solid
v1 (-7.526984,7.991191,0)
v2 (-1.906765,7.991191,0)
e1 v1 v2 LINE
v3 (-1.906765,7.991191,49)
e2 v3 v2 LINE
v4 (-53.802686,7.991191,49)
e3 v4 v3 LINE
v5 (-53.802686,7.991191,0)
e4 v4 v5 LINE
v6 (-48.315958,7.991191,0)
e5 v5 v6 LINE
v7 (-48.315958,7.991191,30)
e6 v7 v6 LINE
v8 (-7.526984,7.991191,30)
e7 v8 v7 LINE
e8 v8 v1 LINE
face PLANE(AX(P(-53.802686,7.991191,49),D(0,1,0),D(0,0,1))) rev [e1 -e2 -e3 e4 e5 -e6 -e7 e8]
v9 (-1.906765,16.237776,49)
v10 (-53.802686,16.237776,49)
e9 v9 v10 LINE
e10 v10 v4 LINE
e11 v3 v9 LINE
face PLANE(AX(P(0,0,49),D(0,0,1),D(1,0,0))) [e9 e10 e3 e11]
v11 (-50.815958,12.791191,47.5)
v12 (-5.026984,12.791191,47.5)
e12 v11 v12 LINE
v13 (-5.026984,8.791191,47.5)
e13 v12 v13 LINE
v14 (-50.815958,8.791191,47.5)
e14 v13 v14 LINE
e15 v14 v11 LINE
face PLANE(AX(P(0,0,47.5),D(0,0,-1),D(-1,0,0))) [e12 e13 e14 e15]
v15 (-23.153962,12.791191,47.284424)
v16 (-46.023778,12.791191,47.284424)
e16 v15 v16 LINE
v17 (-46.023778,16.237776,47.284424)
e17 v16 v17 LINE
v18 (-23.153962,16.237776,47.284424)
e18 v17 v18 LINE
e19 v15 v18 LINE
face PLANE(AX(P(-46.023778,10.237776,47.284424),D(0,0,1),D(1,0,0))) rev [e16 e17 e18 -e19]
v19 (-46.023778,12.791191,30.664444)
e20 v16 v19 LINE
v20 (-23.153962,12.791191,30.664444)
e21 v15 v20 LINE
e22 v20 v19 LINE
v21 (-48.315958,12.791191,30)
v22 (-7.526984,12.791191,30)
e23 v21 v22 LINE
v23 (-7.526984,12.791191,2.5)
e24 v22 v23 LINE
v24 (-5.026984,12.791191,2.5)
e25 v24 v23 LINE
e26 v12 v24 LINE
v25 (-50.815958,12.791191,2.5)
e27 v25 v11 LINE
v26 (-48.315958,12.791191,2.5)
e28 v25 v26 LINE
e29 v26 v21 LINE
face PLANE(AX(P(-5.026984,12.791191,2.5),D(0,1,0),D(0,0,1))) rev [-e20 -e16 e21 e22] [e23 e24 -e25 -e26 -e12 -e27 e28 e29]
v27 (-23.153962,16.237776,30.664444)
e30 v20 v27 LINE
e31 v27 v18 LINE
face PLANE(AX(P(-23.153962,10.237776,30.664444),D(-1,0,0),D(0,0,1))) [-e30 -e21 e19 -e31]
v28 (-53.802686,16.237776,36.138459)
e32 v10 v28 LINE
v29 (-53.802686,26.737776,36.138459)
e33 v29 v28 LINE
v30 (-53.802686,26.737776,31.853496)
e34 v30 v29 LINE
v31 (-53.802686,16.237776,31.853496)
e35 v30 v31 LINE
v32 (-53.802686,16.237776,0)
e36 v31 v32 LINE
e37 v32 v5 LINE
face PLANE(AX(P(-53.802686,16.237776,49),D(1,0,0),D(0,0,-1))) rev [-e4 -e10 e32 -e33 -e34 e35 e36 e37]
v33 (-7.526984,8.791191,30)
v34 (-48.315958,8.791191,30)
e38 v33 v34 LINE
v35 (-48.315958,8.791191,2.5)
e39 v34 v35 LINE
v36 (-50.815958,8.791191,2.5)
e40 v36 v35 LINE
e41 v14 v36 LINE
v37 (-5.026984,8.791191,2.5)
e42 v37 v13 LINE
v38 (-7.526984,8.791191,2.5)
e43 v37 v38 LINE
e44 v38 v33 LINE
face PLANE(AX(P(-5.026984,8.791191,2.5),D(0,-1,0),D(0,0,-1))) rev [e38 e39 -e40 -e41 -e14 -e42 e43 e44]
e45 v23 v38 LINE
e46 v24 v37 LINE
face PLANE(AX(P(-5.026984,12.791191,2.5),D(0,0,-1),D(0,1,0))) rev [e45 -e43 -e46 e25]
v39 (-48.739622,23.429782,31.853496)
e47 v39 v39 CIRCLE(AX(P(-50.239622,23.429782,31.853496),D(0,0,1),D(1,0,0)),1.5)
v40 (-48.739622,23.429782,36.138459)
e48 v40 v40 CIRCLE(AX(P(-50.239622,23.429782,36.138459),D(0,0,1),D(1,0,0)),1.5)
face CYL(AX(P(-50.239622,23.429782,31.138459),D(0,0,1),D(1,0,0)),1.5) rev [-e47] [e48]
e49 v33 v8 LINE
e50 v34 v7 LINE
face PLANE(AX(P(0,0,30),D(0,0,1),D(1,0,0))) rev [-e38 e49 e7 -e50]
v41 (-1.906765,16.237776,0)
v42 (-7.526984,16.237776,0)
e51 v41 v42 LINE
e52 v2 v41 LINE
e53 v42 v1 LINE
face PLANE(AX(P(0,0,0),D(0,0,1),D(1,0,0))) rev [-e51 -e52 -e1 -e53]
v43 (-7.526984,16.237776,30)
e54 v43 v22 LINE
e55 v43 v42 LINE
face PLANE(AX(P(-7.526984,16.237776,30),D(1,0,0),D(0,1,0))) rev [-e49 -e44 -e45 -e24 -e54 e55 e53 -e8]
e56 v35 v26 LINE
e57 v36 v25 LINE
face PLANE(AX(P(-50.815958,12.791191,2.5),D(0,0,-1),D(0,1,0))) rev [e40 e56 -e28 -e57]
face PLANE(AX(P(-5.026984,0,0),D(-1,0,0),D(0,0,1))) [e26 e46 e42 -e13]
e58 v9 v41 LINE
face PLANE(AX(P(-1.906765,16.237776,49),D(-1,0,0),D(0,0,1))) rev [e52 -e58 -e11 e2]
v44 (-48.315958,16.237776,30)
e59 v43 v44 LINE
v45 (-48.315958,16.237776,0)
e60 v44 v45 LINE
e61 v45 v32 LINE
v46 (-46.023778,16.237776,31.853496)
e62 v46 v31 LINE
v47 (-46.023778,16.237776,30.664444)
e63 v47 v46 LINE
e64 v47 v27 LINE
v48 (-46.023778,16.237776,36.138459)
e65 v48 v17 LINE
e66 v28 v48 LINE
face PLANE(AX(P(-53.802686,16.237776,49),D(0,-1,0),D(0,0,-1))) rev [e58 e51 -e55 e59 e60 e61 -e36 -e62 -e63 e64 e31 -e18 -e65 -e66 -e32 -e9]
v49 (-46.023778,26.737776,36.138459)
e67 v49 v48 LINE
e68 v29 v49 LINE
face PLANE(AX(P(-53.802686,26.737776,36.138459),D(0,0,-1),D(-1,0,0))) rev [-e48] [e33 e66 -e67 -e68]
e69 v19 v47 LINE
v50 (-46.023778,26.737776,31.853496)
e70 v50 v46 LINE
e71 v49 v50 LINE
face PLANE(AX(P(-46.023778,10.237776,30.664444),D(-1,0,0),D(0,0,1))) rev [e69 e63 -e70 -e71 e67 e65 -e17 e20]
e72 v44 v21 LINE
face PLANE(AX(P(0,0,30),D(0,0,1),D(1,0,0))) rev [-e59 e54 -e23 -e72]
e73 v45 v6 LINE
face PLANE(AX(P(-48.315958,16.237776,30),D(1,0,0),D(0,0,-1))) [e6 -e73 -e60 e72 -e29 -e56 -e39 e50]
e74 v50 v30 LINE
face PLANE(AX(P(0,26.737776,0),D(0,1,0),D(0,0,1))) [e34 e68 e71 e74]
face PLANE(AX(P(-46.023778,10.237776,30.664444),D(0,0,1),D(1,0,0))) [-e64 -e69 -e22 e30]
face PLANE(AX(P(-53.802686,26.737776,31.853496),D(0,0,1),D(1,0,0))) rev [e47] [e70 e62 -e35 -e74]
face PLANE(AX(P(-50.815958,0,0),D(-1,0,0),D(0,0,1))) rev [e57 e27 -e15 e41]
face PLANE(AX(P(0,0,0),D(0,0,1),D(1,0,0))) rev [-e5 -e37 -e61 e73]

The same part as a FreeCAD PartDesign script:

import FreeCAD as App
import Part
import Sketcher
Q = App.Units.Quantity

doc = App.newDocument("Part")
body = doc.addObject("PartDesign::Body", "Body")

# Sketch on XY plane
sketch1 = doc.addObject("Sketcher::SketchObject", "Sketch")
body.addObject(sketch1)
sketch1.AttachmentSupport = (doc.XY_Plane, [""])
sketch1.MapMode = "FlatFace"
sketch1.addGeometry(Part.LineSegment(App.Vector(-54, 16, 0), App.Vector(-54, 8, 0)), False)
sketch1.addGeometry(Part.LineSegment(App.Vector(-54, 8, 0), App.Vector(-2, 8, 0)), False)
sketch1.addGeometry(Part.LineSegment(App.Vector(-2, 8, 0), App.Vector(-2, 16, 0)), False)
sketch1.addGeometry(Part.LineSegment(App.Vector(-2, 16, 0), App.Vector(-54, 16, 0)), False)
sketch1.addConstraint(Sketcher.Constraint("Coincident", 0, 2, 1, 1))
sketch1.addConstraint(Sketcher.Constraint("Coincident", 1, 2, 2, 1))
sketch1.addConstraint(Sketcher.Constraint("Coincident", 2, 2, 3, 1))
sketch1.addConstraint(Sketcher.Constraint("Coincident", 3, 2, 0, 1))
sketch1.addConstraint(Sketcher.Constraint("Vertical", 0))
sketch1.addConstraint(Sketcher.Constraint("Horizontal", 1))
sketch1.addConstraint(Sketcher.Constraint("Vertical", 2))
sketch1.addConstraint(Sketcher.Constraint("Horizontal", 3))
sketch1.addConstraint(Sketcher.Constraint("DistanceX", 1, 1, 1, 2, Q("51.895921 mm")))
sketch1.addConstraint(Sketcher.Constraint("DistanceY", 0, 2, 0, 1, Q("8.246585 mm")))
sketch1.addConstraint(Sketcher.Constraint("DistanceY", -1, 1, 0, 2, Q("7.991191 mm")))
sketch1.addConstraint(Sketcher.Constraint("DistanceX", 0, 2, -1, 1, Q("53.802686 mm")))
pad1 = doc.addObject("PartDesign::Pad", "Pad")
body.addObject(pad1)
pad1.Profile = sketch1
pad1.Length = 49

# Sketch on XY plane
sketch2 = doc.addObject("Sketcher::SketchObject", "Sketch001")
body.addObject(sketch2)
sketch2.AttachmentSupport = (doc.XY_Plane, [""])
sketch2.MapMode = "FlatFace"
sketch2.addGeometry(Part.LineSegment(App.Vector(-8, 16, 0), App.Vector(-8, 8, 0)), False)
sketch2.addGeometry(Part.LineSegment(App.Vector(-8, 8, 0), App.Vector(-48, 8, 0)), False)
sketch2.addGeometry(Part.LineSegment(App.Vector(-48, 8, 0), App.Vector(-48, 16, 0)), False)
sketch2.addGeometry(Part.LineSegment(App.Vector(-48, 16, 0), App.Vector(-8, 16, 0)), False)
sketch2.addConstraint(Sketcher.Constraint("Coincident", 0, 2, 1, 1))
sketch2.addConstraint(Sketcher.Constraint("Coincident", 1, 2, 2, 1))
sketch2.addConstraint(Sketcher.Constraint("Coincident", 2, 2, 3, 1))
sketch2.addConstraint(Sketcher.Constraint("Coincident", 3, 2, 0, 1))
sketch2.addConstraint(Sketcher.Constraint("Vertical", 0))
sketch2.addConstraint(Sketcher.Constraint("Horizontal", 1))
sketch2.addConstraint(Sketcher.Constraint("Vertical", 2))
sketch2.addConstraint(Sketcher.Constraint("Horizontal", 3))
sketch2.addConstraint(Sketcher.Constraint("DistanceX", 1, 2, 1, 1, Q("40.788974 mm")))
sketch2.addConstraint(Sketcher.Constraint("DistanceY", 0, 2, 0, 1, Q("8.246585 mm")))
sketch2.addConstraint(Sketcher.Constraint("DistanceY", -1, 1, 0, 2, Q("7.991191 mm")))
sketch2.addConstraint(Sketcher.Constraint("DistanceX", 1, 2, -1, 1, Q("48.315958 mm")))
pocket1 = doc.addObject("PartDesign::Pocket", "Pocket")
body.addObject(pocket1)
pocket1.Profile = sketch2
pocket1.Length = 30
pocket1.Reversed = True

# Sketch on XZ plane
sketch3 = doc.addObject("Sketcher::SketchObject", "Sketch002")
body.addObject(sketch3)
sketch3.AttachmentSupport = (doc.XZ_Plane, [""])
sketch3.MapMode = "FlatFace"
sketch3.AttachmentOffset = App.Placement(App.Vector(0, 0, -16.237776), App.Rotation())
sketch3.addGeometry(Part.LineSegment(App.Vector(-46, 31, 0), App.Vector(-46, 47, 0)), False)
sketch3.addGeometry(Part.LineSegment(App.Vector(-46, 47, 0), App.Vector(-23, 47, 0)), False)
sketch3.addGeometry(Part.LineSegment(App.Vector(-23, 47, 0), App.Vector(-23, 31, 0)), False)
sketch3.addGeometry(Part.LineSegment(App.Vector(-23, 31, 0), App.Vector(-46, 31, 0)), False)
sketch3.addConstraint(Sketcher.Constraint("Coincident", 0, 2, 1, 1))
sketch3.addConstraint(Sketcher.Constraint("Coincident", 1, 2, 2, 1))
sketch3.addConstraint(Sketcher.Constraint("Coincident", 2, 2, 3, 1))
sketch3.addConstraint(Sketcher.Constraint("Coincident", 3, 2, 0, 1))
sketch3.addConstraint(Sketcher.Constraint("Vertical", 0))
sketch3.addConstraint(Sketcher.Constraint("Horizontal", 1))
sketch3.addConstraint(Sketcher.Constraint("Vertical", 2))
sketch3.addConstraint(Sketcher.Constraint("Horizontal", 3))
sketch3.addConstraint(Sketcher.Constraint("DistanceY", 0, 1, 0, 2, Q("16.61998 mm")))
sketch3.addConstraint(Sketcher.Constraint("DistanceX", 1, 1, 1, 2, Q("22.869816 mm")))
sketch3.addConstraint(Sketcher.Constraint("DistanceX", 0, 2, -1, 1, Q("46.023778 mm")))
sketch3.addConstraint(Sketcher.Constraint("DistanceY", -1, 1, 0, 2, Q("47.284424 mm")))
pocket2 = doc.addObject("PartDesign::Pocket", "Pocket001")
body.addObject(pocket2)
pocket2.Profile = sketch3
pocket2.Length = 6
pocket2.Reversed = True

# Sketch on YZ plane
sketch4 = doc.addObject("Sketcher::SketchObject", "Sketch003")
body.addObject(sketch4)
sketch4.AttachmentSupport = (doc.YZ_Plane, [""])
sketch4.MapMode = "FlatFace"
sketch4.AttachmentOffset = App.Placement(App.Vector(0, 0, -7.526984), App.Rotation())
sketch4.addGeometry(Part.LineSegment(App.Vector(12.8, 2.5, 0), App.Vector(8.8, 2.5, 0)), False)
sketch4.addGeometry(Part.LineSegment(App.Vector(8.8, 2.5, 0), App.Vector(8.8, 30, 0)), False)
sketch4.addGeometry(Part.LineSegment(App.Vector(8.8, 30, 0), App.Vector(12.8, 30, 0)), False)
sketch4.addGeometry(Part.LineSegment(App.Vector(12.8, 30, 0), App.Vector(12.8, 2.5, 0)), False)
sketch4.addConstraint(Sketcher.Constraint("Coincident", 0, 2, 1, 1))
sketch4.addConstraint(Sketcher.Constraint("Coincident", 1, 2, 2, 1))
sketch4.addConstraint(Sketcher.Constraint("Coincident", 2, 2, 3, 1))
sketch4.addConstraint(Sketcher.Constraint("Coincident", 3, 2, 0, 1))
sketch4.addConstraint(Sketcher.Constraint("Horizontal", 0))
sketch4.addConstraint(Sketcher.Constraint("Vertical", 1))
sketch4.addConstraint(Sketcher.Constraint("Horizontal", 2))
sketch4.addConstraint(Sketcher.Constraint("Vertical", 3))
sketch4.addConstraint(Sketcher.Constraint("DistanceX", 0, 2, 0, 1, Q("4 mm")))
sketch4.addConstraint(Sketcher.Constraint("DistanceY", 1, 1, 1, 2, Q("27.5 mm")))
sketch4.addConstraint(Sketcher.Constraint("DistanceY", -1, 1, 1, 2, Q("30 mm")))
sketch4.addConstraint(Sketcher.Constraint("DistanceX", -1, 1, 0, 2, Q("8.791191 mm")))
pocket3 = doc.addObject("PartDesign::Pocket", "Pocket002")
body.addObject(pocket3)
pocket3.Profile = sketch4
pocket3.Length = 2.5
pocket3.Reversed = True

# Sketch on YZ plane
sketch5 = doc.addObject("Sketcher::SketchObject", "Sketch004")
body.addObject(sketch5)
sketch5.AttachmentSupport = (doc.YZ_Plane, [""])
sketch5.MapMode = "FlatFace"
sketch5.AttachmentOffset = App.Placement(App.Vector(0, 0, -48.315958), App.Rotation())
sketch5.addGeometry(Part.LineSegment(App.Vector(12.8, 30, 0), App.Vector(8.8, 30, 0)), False)
sketch5.addGeometry(Part.LineSegment(App.Vector(8.8, 30, 0), App.Vector(8.8, 2.5, 0)), False)
sketch5.addGeometry(Part.LineSegment(App.Vector(8.8, 2.5, 0), App.Vector(12.8, 2.5, 0)), False)
sketch5.addGeometry(Part.LineSegment(App.Vector(12.8, 2.5, 0), App.Vector(12.8, 30, 0)), False)
sketch5.addConstraint(Sketcher.Constraint("Coincident", 0, 2, 1, 1))
sketch5.addConstraint(Sketcher.Constraint("Coincident", 1, 2, 2, 1))
sketch5.addConstraint(Sketcher.Constraint("Coincident", 2, 2, 3, 1))
sketch5.addConstraint(Sketcher.Constraint("Coincident", 3, 2, 0, 1))
sketch5.addConstraint(Sketcher.Constraint("Horizontal", 0))
sketch5.addConstraint(Sketcher.Constraint("Vertical", 1))
sketch5.addConstraint(Sketcher.Constraint("Horizontal", 2))
sketch5.addConstraint(Sketcher.Constraint("Vertical", 3))
sketch5.addConstraint(Sketcher.Constraint("DistanceX", 0, 2, 0, 1, Q("4 mm")))
sketch5.addConstraint(Sketcher.Constraint("DistanceY", 1, 2, 1, 1, Q("27.5 mm")))
sketch5.addConstraint(Sketcher.Constraint("DistanceY", -1, 1, 0, 2, Q("30 mm")))
sketch5.addConstraint(Sketcher.Constraint("DistanceX", -1, 1, 0, 2, Q("8.791191 mm")))
pocket4 = doc.addObject("PartDesign::Pocket", "Pocket003")
body.addObject(pocket4)
pocket4.Profile = sketch5
pocket4.Length = 2.5

# Sketch on XY plane
sketch6 = doc.addObject("Sketcher::SketchObject", "Sketch005")
body.addObject(sketch6)
sketch6.AttachmentSupport = (doc.XY_Plane, [""])
sketch6.MapMode = "FlatFace"
sketch6.AttachmentOffset = App.Placement(App.Vector(0, 0, 30), App.Rotation())
sketch6.addGeometry(Part.LineSegment(App.Vector(-5, 12.8, 0), App.Vector(-5, 8.8, 0)), False)
sketch6.addGeometry(Part.LineSegment(App.Vector(-5, 8.8, 0), App.Vector(-50.8, 8.8, 0)), False)
sketch6.addGeometry(Part.LineSegment(App.Vector(-50.8, 8.8, 0), App.Vector(-50.8, 12.8, 0)), False)
sketch6.addGeometry(Part.LineSegment(App.Vector(-50.8, 12.8, 0), App.Vector(-5, 12.8, 0)), False)
sketch6.addConstraint(Sketcher.Constraint("Coincident", 0, 2, 1, 1))
sketch6.addConstraint(Sketcher.Constraint("Coincident", 1, 2, 2, 1))
sketch6.addConstraint(Sketcher.Constraint("Coincident", 2, 2, 3, 1))
sketch6.addConstraint(Sketcher.Constraint("Coincident", 3, 2, 0, 1))
sketch6.addConstraint(Sketcher.Constraint("Vertical", 0))
sketch6.addConstraint(Sketcher.Constraint("Horizontal", 1))
sketch6.addConstraint(Sketcher.Constraint("Vertical", 2))
sketch6.addConstraint(Sketcher.Constraint("Horizontal", 3))
sketch6.addConstraint(Sketcher.Constraint("DistanceY", 0, 2, 0, 1, Q("4 mm")))
sketch6.addConstraint(Sketcher.Constraint("DistanceX", 1, 2, 1, 1, Q("45.788974 mm")))
sketch6.addConstraint(Sketcher.Constraint("DistanceY", -1, 1, 0, 2, Q("8.791191 mm")))
sketch6.addConstraint(Sketcher.Constraint("DistanceX", 1, 2, -1, 1, Q("50.815958 mm")))
pocket5 = doc.addObject("PartDesign::Pocket", "Pocket004")
body.addObject(pocket5)
pocket5.Profile = sketch6
pocket5.Length = 17.5
pocket5.Reversed = True

# Sketch on XZ plane
sketch7 = doc.addObject("Sketcher::SketchObject", "Sketch006")
body.addObject(sketch7)
sketch7.AttachmentSupport = (doc.XZ_Plane, [""])
sketch7.MapMode = "FlatFace"
sketch7.AttachmentOffset = App.Placement(App.Vector(0, 0, -16.237776), App.Rotation())
sketch7.addGeometry(Part.LineSegment(App.Vector(-53.8, 31.9, 0), App.Vector(-53.8, 36.1, 0)), False)
sketch7.addGeometry(Part.LineSegment(App.Vector(-53.8, 36.1, 0), App.Vector(-46, 36.1, 0)), False)
sketch7.addGeometry(Part.LineSegment(App.Vector(-46, 36.1, 0), App.Vector(-46, 31.9, 0)), False)
sketch7.addGeometry(Part.LineSegment(App.Vector(-46, 31.9, 0), App.Vector(-53.8, 31.9, 0)), False)
sketch7.addConstraint(Sketcher.Constraint("Coincident", 0, 2, 1, 1))
sketch7.addConstraint(Sketcher.Constraint("Coincident", 1, 2, 2, 1))
sketch7.addConstraint(Sketcher.Constraint("Coincident", 2, 2, 3, 1))
sketch7.addConstraint(Sketcher.Constraint("Coincident", 3, 2, 0, 1))
sketch7.addConstraint(Sketcher.Constraint("Vertical", 0))
sketch7.addConstraint(Sketcher.Constraint("Horizontal", 1))
sketch7.addConstraint(Sketcher.Constraint("Vertical", 2))
sketch7.addConstraint(Sketcher.Constraint("Horizontal", 3))
sketch7.addConstraint(Sketcher.Constraint("DistanceX", 1, 1, 1, 2, Q("7.778908 mm")))
sketch7.addConstraint(Sketcher.Constraint("DistanceY", 0, 1, 0, 2, Q("4.284963 mm")))
sketch7.addConstraint(Sketcher.Constraint("DistanceY", -1, 1, 0, 2, Q("36.138459 mm")))
sketch7.addConstraint(Sketcher.Constraint("DistanceX", 0, 2, -1, 1, Q("53.802686 mm")))
pad2 = doc.addObject("PartDesign::Pad", "Pad001")
body.addObject(pad2)
pad2.Profile = sketch7
pad2.Length = 10.5
pad2.Reversed = True

# Sketch on XY plane
sketch8 = doc.addObject("Sketcher::SketchObject", "Sketch007")
body.addObject(sketch8)
sketch8.AttachmentSupport = (doc.XY_Plane, [""])
sketch8.MapMode = "FlatFace"
sketch8.AttachmentOffset = App.Placement(App.Vector(0, 0, 36.138459), App.Rotation())
sketch8.addGeometry(Part.Circle(App.Vector(-50.2, 23.4, 0), App.Vector(0, 0, 1), 1.5), False)
sketch8.addConstraint(Sketcher.Constraint("Diameter", 0, Q("3 mm")))
sketch8.addConstraint(Sketcher.Constraint("DistanceX", 0, 3, -1, 1, Q("50.239622 mm")))
sketch8.addConstraint(Sketcher.Constraint("DistanceY", -1, 1, 0, 3, Q("23.429782 mm")))
pocket6 = doc.addObject("PartDesign::Pocket", "Pocket005")
body.addObject(pocket6)
pocket6.Profile = sketch8
pocket6.Length = 5

doc.recompute()
